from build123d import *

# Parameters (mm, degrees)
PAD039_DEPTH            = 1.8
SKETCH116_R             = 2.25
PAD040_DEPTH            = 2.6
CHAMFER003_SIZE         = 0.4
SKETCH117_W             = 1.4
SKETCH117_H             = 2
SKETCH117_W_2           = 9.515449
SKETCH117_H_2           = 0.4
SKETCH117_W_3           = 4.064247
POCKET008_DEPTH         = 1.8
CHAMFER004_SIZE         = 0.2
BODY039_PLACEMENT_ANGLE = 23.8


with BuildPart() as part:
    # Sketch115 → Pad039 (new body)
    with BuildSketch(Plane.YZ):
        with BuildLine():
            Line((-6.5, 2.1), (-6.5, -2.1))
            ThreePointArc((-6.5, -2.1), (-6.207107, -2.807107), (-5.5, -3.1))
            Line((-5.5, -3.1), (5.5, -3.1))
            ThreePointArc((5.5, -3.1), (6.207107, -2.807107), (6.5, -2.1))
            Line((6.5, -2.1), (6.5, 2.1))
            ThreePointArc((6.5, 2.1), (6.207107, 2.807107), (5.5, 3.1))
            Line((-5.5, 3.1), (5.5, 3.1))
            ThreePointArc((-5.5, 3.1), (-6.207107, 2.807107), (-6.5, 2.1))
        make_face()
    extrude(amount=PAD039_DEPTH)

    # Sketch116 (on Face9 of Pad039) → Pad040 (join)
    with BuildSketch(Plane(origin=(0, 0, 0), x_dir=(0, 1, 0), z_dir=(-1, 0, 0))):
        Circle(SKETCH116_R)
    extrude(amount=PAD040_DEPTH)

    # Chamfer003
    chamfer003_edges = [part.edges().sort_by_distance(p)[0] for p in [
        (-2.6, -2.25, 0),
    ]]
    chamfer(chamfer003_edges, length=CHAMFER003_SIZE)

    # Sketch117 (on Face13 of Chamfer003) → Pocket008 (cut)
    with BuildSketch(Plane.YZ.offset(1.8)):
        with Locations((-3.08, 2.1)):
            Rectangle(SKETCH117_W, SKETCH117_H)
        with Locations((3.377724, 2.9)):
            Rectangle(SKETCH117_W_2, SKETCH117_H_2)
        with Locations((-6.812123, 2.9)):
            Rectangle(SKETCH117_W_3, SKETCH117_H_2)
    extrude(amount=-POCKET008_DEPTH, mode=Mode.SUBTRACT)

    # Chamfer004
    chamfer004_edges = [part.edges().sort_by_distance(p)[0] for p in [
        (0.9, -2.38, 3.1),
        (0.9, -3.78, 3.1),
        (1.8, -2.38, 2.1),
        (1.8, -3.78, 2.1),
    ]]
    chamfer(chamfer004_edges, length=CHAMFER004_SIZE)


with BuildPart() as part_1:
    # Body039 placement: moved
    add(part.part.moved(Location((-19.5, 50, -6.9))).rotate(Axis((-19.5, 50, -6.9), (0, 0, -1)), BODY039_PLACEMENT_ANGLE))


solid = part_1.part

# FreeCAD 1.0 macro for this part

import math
import FreeCAD as App
import Part
import Sketcher
from FreeCAD import Vector
Q = App.Units.Quantity


def edges_at(feature, points):
    """Names of the edges that pass closest to the given points."""
    edges = feature.Shape.Edges
    near = lambda p: min(range(len(edges)), key=lambda i: edges[i].distToShape(Part.Vertex(*p))[0])
    return sorted({f"Edge{near(p) + 1}" for p in points})

doc = App.newDocument("Part")
body = doc.addObject("PartDesign::Body", "Body")

# Sketch on YZ plane
sketch1 = body.newObject("Sketcher::SketchObject", "Sketch")
sketch1.AttachmentSupport = (doc.getObject("YZ_Plane"), [""])
sketch1.MapMode = "FlatFace"
sketch1.addGeometry(Part.LineSegment(Vector(-6.5, 2.1, 0), Vector(-6.5, -2.1, 0)), False)
sketch1.addGeometry(Part.ArcOfCircle(Part.Circle(Vector(-5.500001, -2.100001, 0), Vector(0, 0, 1), 0.999999), math.radians(179.999957), math.radians(270.000043)), False)
sketch1.addGeometry(Part.LineSegment(Vector(-5.5, -3.1, 0), Vector(5.5, -3.1, 0)), False)
sketch1.addGeometry(Part.ArcOfCircle(Part.Circle(Vector(5.500001, -2.100001, 0), Vector(0, 0, 1), 0.999999), math.radians(-90.000043), math.radians(0.000043)), False)
sketch1.addGeometry(Part.LineSegment(Vector(6.5, -2.1, 0), Vector(6.5, 2.1, 0)), False)
sketch1.addGeometry(Part.ArcOfCircle(Part.Circle(Vector(5.500001, 2.100001, 0), Vector(0, 0, 1), 0.999999), math.radians(-0.000043), math.radians(90.000043)), False)
sketch1.addGeometry(Part.LineSegment(Vector(5.5, 3.1, 0), Vector(-5.5, 3.1, 0)), False)
sketch1.addGeometry(Part.ArcOfCircle(Part.Circle(Vector(-5.500001, 2.100001, 0), Vector(0, 0, 1), 0.999999), math.radians(89.999957), math.radians(180.000043)), False)
sketch1.addConstraint(Sketcher.Constraint("Tangent", 0, 2, 1, 1))
sketch1.addConstraint(Sketcher.Constraint("Tangent", 1, 2, 2, 1))
sketch1.addConstraint(Sketcher.Constraint("Tangent", 2, 2, 3, 1))
sketch1.addConstraint(Sketcher.Constraint("Tangent", 3, 2, 4, 1))
sketch1.addConstraint(Sketcher.Constraint("Tangent", 4, 2, 5, 1))
sketch1.addConstraint(Sketcher.Constraint("Tangent", 5, 2, 6, 1))
sketch1.addConstraint(Sketcher.Constraint("Tangent", 6, 2, 7, 1))
sketch1.addConstraint(Sketcher.Constraint("Tangent", 7, 2, 0, 1))
sketch1.addConstraint(Sketcher.Constraint("Vertical", 0))
sketch1.addConstraint(Sketcher.Constraint("Horizontal", 2))
sketch1.addConstraint(Sketcher.Constraint("Vertical", 4))
sketch1.addConstraint(Sketcher.Constraint("Horizontal", 6))
sketch1.addConstraint(Sketcher.Constraint("Equal", 1, 3))
sketch1.addConstraint(Sketcher.Constraint("Equal", 3, 5))
sketch1.addConstraint(Sketcher.Constraint("Equal", 5, 7))
sketch1.addConstraint(Sketcher.Constraint("Symmetric", 1, 3, 5, 3, -1, 1))
sketch1.addConstraint(Sketcher.Constraint("Radius", 1, Q("0.999999 mm")))
sketch1.addConstraint(Sketcher.Constraint("DistanceX", 2, 1, 2, 2, Q("11 mm")))
sketch1.addConstraint(Sketcher.Constraint("DistanceY", 0, 2, 0, 1, Q("4.2 mm")))
pad1 = body.newObject("PartDesign::Pad", "Pad")
pad1.Profile = sketch1
pad1.Length = 1.8

# Sketch on YZ plane
sketch2 = body.newObject("Sketcher::SketchObject", "Sketch001")
sketch2.AttachmentSupport = (doc.getObject("YZ_Plane"), [""])
sketch2.MapMode = "FlatFace"
sketch2.addGeometry(Part.Circle(Vector(0, 0, 0), Vector(0, 0, 1), 2.25), False)
sketch2.addConstraint(Sketcher.Constraint("Coincident", 0, 3, -1, 1))
sketch2.addConstraint(Sketcher.Constraint("Diameter", 0, Q("4.5 mm")))
pad2 = body.newObject("PartDesign::Pad", "Pad001")
pad2.Profile = sketch2
pad2.Length = 2.6
pad2.Reversed = True
doc.recompute()

chamfer = body.newObject("PartDesign::Chamfer", "Chamfer")
chamfer.Base = (pad2, edges_at(pad2, [(-2.6, -2.25, 0)]))
chamfer.Size = 0.4

# Sketch on YZ plane
sketch3 = body.newObject("Sketcher::SketchObject", "Sketch002")
sketch3.AttachmentSupport = (doc.getObject("YZ_Plane"), [""])
sketch3.MapMode = "FlatFace"
sketch3.AttachmentOffset = App.Placement(Vector(0, 0, 1.8), App.Rotation())
sketch3.addGeometry(Part.LineSegment(Vector(-3.78, 3.1, 0), Vector(-3.78, 1.1, 0)), False)
sketch3.addGeometry(Part.LineSegment(Vector(-3.78, 1.1, 0), Vector(-2.38, 1.1, 0)), False)
sketch3.addGeometry(Part.LineSegment(Vector(-2.38, 1.1, 0), Vector(-2.38, 3.1, 0)), False)
sketch3.addGeometry(Part.LineSegment(Vector(-2.38, 3.1, 0), Vector(-3.78, 3.1, 0)), False)
sketch3.addGeometry(Part.LineSegment(Vector(-1.38, 3.1, 0), Vector(-1.38, 2.7, 0)), False)
sketch3.addGeometry(Part.LineSegment(Vector(-1.38, 2.7, 0), Vector(8.135449, 2.7, 0)), False)
sketch3.addGeometry(Part.LineSegment(Vector(8.135449, 2.7, 0), Vector(8.135449, 3.1, 0)), False)
sketch3.addGeometry(Part.LineSegment(Vector(8.135449, 3.1, 0), Vector(-1.38, 3.1, 0)), False)
sketch3.addGeometry(Part.LineSegment(Vector(-8.844247, 3.1, 0), Vector(-8.844247, 2.7, 0)), False)
sketch3.addGeometry(Part.LineSegment(Vector(-8.844247, 2.7, 0), Vector(-4.779999, 2.7, 0)), False)
sketch3.addGeometry(Part.LineSegment(Vector(-4.779999, 2.7, 0), Vector(-4.779999, 3.1, 0)), False)
sketch3.addGeometry(Part.LineSegment(Vector(-4.779999, 3.1, 0), Vector(-8.844247, 3.1, 0)), False)
sketch3.addConstraint(Sketcher.Constraint("Coincident", 0, 2, 1, 1))
sketch3.addConstraint(Sketcher.Constraint("Coincident", 1, 2, 2, 1))
sketch3.addConstraint(Sketcher.Constraint("Coincident", 2, 2, 3, 1))
sketch3.addConstraint(Sketcher.Constraint("Coincident", 3, 2, 0, 1))
sketch3.addConstraint(Sketcher.Constraint("Coincident", 4, 2, 5, 1))
sketch3.addConstraint(Sketcher.Constraint("Coincident", 5, 2, 6, 1))
sketch3.addConstraint(Sketcher.Constraint("Coincident", 6, 2, 7, 1))
sketch3.addConstraint(Sketcher.Constraint("Coincident", 7, 2, 4, 1))
sketch3.addConstraint(Sketcher.Constraint("Coincident", 8, 2, 9, 1))
sketch3.addConstraint(Sketcher.Constraint("Coincident", 9, 2, 10, 1))
sketch3.addConstraint(Sketcher.Constraint("Coincident", 10, 2, 11, 1))
sketch3.addConstraint(Sketcher.Constraint("Coincident", 11, 2, 8, 1))
sketch3.addConstraint(Sketcher.Constraint("Vertical", 0))
sketch3.addConstraint(Sketcher.Constraint("Horizontal", 1))
sketch3.addConstraint(Sketcher.Constraint("Vertical", 2))
sketch3.addConstraint(Sketcher.Constraint("Horizontal", 3))
sketch3.addConstraint(Sketcher.Constraint("Vertical", 4))
sketch3.addConstraint(Sketcher.Constraint("Horizontal", 5))
sketch3.addConstraint(Sketcher.Constraint("Vertical", 6))
sketch3.addConstraint(Sketcher.Constraint("Horizontal", 7))
sketch3.addConstraint(Sketcher.Constraint("Vertical", 8))
sketch3.addConstraint(Sketcher.Constraint("Horizontal", 9))
sketch3.addConstraint(Sketcher.Constraint("Vertical", 10))
sketch3.addConstraint(Sketcher.Constraint("Horizontal", 11))
sketch3.addConstraint(Sketcher.Constraint("Horizontal", 3, 2, 6, 2))
sketch3.addConstraint(Sketcher.Constraint("Horizontal", 5, 2, 8, 2))
sketch3.addConstraint(Sketcher.Constraint("Horizontal", 7, 2, 10, 2))
sketch3.addConstraint(Sketcher.Constraint("DistanceY", 0, 2, 0, 1, Q("2 mm")))
sketch3.addConstraint(Sketcher.Constraint("DistanceX", 1, 1, 1, 2, Q("1.4 mm")))
sketch3.addConstraint(Sketcher.Constraint("DistanceY", 4, 2, 4, 1, Q("0.4 mm")))
sketch3.addConstraint(Sketcher.Constraint("DistanceX", 2, 2, 4, 2, Q("0.999999 mm")))
sketch3.addConstraint(Sketcher.Constraint("DistanceX", 9, 2, 3, 2, Q("0.999999 mm")))
sketch3.addConstraint(Sketcher.Constraint("DistanceY", -1, 1, 0, 2, Q("1.1 mm")))
sketch3.addConstraint(Sketcher.Constraint("DistanceX", 0, 2, -1, 1, Q("3.78 mm")))
sketch3.addConstraint(Sketcher.Constraint("DistanceX", 5, 1, 5, 2, Q("9.515449 mm")))
sketch3.addConstraint(Sketcher.Constraint("DistanceX", 9, 1, 9, 2, Q("4.064247 mm")))
pocket1 = body.newObject("PartDesign::Pocket", "Pocket")
pocket1.Profile = sketch3
pocket1.Length = 1.8
doc.recompute()

chamfer2 = body.newObject("PartDesign::Chamfer", "Chamfer001")
chamfer2.Base = (pocket1, edges_at(pocket1, [
    (0.9, -2.38, 3.1),
    (0.9, -3.78, 3.1),
    (1.8, -2.38, 2.1),
    (1.8, -3.78, 2.1),
]))
chamfer2.Size = 0.2
body2 = doc.addObject("PartDesign::Body", "Body001")
doc.recompute()

body.Placement = App.Placement(Vector(-19.5, 50, -6.9), App.Rotation(Vector(0, 0, -1), 23.8))
boolean = body2.newObject("PartDesign::Boolean", "Boolean")
boolean.Type = "Fuse"
boolean.addObjects([body])

doc.recompute()
